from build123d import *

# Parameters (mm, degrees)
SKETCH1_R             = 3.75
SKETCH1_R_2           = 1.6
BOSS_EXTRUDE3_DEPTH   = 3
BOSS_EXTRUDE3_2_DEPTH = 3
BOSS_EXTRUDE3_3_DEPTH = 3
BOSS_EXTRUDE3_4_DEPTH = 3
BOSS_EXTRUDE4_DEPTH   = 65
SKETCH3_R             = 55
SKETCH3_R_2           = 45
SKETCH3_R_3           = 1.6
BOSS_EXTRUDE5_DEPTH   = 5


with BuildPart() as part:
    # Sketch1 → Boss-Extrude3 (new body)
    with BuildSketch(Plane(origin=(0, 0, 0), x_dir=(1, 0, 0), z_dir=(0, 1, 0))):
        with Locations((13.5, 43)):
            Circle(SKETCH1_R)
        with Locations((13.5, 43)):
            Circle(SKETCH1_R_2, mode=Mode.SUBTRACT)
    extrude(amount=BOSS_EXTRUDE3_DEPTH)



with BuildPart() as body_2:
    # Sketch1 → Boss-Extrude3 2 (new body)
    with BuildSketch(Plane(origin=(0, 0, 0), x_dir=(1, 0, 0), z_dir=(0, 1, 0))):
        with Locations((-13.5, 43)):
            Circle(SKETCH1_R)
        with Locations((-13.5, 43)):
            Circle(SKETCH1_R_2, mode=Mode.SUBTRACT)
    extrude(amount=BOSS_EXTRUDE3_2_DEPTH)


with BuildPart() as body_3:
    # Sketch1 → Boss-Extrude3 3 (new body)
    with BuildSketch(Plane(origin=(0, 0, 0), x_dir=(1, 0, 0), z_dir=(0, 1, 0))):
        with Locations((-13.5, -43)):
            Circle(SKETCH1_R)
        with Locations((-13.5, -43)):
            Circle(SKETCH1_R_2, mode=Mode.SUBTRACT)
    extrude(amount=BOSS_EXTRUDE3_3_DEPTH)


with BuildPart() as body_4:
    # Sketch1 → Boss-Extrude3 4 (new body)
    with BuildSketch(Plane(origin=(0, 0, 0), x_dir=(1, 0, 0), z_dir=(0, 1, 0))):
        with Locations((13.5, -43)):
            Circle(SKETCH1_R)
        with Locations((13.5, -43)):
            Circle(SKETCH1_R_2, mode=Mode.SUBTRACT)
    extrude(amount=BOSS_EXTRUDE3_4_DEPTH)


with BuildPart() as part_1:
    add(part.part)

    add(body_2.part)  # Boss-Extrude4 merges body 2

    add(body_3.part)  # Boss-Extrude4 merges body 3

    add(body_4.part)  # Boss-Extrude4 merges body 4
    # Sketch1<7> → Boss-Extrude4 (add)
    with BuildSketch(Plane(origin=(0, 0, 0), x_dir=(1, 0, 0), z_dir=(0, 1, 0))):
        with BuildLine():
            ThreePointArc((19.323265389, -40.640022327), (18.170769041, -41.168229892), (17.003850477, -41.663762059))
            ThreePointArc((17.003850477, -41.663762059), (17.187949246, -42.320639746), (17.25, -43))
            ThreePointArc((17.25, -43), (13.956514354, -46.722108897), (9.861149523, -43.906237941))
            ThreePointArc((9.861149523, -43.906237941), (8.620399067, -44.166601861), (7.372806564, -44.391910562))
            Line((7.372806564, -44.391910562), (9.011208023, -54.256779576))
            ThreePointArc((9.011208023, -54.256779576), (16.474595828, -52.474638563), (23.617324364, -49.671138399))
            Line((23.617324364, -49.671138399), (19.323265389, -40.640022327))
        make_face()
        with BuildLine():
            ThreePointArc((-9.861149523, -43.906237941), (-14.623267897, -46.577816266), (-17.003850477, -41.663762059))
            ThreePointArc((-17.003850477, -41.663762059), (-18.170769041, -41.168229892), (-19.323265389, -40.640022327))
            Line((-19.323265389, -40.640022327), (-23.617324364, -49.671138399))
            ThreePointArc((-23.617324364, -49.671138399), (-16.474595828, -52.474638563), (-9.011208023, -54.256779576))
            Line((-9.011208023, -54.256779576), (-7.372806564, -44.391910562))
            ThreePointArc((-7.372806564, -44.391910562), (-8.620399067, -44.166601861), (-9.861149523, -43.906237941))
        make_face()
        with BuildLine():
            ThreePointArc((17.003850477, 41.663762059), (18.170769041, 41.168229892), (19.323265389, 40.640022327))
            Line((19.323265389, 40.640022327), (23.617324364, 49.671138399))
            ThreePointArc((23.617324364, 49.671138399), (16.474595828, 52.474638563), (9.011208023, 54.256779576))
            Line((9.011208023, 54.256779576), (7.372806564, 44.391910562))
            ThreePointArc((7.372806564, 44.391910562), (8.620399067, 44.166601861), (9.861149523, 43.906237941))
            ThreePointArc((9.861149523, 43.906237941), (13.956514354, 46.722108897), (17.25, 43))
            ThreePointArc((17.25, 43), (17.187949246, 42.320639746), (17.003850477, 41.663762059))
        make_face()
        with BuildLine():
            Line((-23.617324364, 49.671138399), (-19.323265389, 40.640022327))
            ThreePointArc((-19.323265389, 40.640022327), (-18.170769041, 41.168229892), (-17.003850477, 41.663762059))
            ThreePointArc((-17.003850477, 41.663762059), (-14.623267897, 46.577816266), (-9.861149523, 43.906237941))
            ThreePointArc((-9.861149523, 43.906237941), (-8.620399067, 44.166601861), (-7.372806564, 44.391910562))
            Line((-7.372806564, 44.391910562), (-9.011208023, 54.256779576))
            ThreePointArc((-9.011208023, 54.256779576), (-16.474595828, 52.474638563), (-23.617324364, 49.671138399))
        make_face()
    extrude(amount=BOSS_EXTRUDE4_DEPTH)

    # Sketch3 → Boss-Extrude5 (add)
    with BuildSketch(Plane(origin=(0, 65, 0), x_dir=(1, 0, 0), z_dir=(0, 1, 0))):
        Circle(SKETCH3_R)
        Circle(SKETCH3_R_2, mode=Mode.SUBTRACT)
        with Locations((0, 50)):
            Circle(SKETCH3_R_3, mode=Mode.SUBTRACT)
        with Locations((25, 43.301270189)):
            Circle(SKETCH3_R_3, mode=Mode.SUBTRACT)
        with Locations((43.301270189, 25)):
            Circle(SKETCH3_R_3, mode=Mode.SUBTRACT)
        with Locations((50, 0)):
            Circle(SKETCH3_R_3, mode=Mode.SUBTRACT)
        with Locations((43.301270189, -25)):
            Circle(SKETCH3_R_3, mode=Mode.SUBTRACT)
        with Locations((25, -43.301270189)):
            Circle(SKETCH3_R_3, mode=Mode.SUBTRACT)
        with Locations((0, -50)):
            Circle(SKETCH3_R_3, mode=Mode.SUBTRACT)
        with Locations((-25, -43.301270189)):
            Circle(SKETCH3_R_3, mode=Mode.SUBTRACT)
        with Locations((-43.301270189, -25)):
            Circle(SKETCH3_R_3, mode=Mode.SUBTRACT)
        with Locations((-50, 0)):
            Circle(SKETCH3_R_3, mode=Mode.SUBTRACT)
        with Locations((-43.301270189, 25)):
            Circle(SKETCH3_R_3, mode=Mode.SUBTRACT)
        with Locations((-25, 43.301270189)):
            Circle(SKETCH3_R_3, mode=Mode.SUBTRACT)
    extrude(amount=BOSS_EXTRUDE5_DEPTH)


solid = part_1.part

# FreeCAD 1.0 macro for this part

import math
import FreeCAD as App
import Part
import Sketcher

V = App.Vector
Q = App.Units.Quantity

doc = App.newDocument("Part")
body = doc.addObject("PartDesign::Body", "Body")

# Sketch on XZ plane
sketch1 = body.newObject("Sketcher::SketchObject", "Sketch")
sketch1.AttachmentSupport = (doc.getObject("XZ_Plane"), [""])
sketch1.MapMode = "FlatFace"
sketch1.addGeometry([
    Part.Circle(V(13.5, -43, 0), V(0, 0, 1), 3.75),
    Part.Circle(V(13.5, -43, 0), V(0, 0, 1), 1.6),
], False)
sketch1.addConstraint([
    Sketcher.Constraint("Coincident", 1, 3, 0, 3),
    Sketcher.Constraint("Diameter", 0, Q("7.5 mm")),
    Sketcher.Constraint("Diameter", 1, Q("3.2 mm")),
    Sketcher.Constraint("DistanceY", 0, 3, -1, 1, Q("43 mm")),
    Sketcher.Constraint("DistanceX", -1, 1, 0, 3, Q("13.5 mm")),
])
pad1 = body.newObject("PartDesign::Pad", "Pad")
pad1.Profile = sketch1
pad1.Length = 3
pad1.Reversed = True
body2 = doc.addObject("PartDesign::Body", "Body001")

# Sketch on XZ plane
sketch2 = body2.newObject("Sketcher::SketchObject", "Sketch001")
sketch2.AttachmentSupport = (doc.getObject("XZ_Plane001"), [""])
sketch2.MapMode = "FlatFace"
sketch2.addGeometry([
    Part.Circle(V(-13.5, -43, 0), V(0, 0, 1), 3.75),
    Part.Circle(V(-13.5, -43, 0), V(0, 0, 1), 1.6),
], False)
sketch2.addConstraint([
    Sketcher.Constraint("Coincident", 1, 3, 0, 3),
    Sketcher.Constraint("Diameter", 0, Q("7.5 mm")),
    Sketcher.Constraint("Diameter", 1, Q("3.2 mm")),
    Sketcher.Constraint("DistanceY", 0, 3, -1, 1, Q("43 mm")),
    Sketcher.Constraint("DistanceX", 0, 3, -1, 1, Q("13.5 mm")),
])
pad2 = body2.newObject("PartDesign::Pad", "Pad001")
pad2.Profile = sketch2
pad2.Length = 3
pad2.Reversed = True
body3 = doc.addObject("PartDesign::Body", "Body002")

# Sketch on XZ plane
sketch3 = body3.newObject("Sketcher::SketchObject", "Sketch002")
sketch3.AttachmentSupport = (doc.getObject("XZ_Plane002"), [""])
sketch3.MapMode = "FlatFace"
sketch3.addGeometry([
    Part.Circle(V(-13.5, 43, 0), V(0, 0, 1), 3.75),
    Part.Circle(V(-13.5, 43, 0), V(0, 0, 1), 1.6),
], False)
sketch3.addConstraint([
    Sketcher.Constraint("Coincident", 1, 3, 0, 3),
    Sketcher.Constraint("Diameter", 0, Q("7.5 mm")),
    Sketcher.Constraint("Diameter", 1, Q("3.2 mm")),
    Sketcher.Constraint("DistanceY", -1, 1, 0, 3, Q("43 mm")),
    Sketcher.Constraint("DistanceX", 0, 3, -1, 1, Q("13.5 mm")),
])
pad3 = body3.newObject("PartDesign::Pad", "Pad002")
pad3.Profile = sketch3
pad3.Length = 3
pad3.Reversed = True
body4 = doc.addObject("PartDesign::Body", "Body003")

# Sketch on XZ plane
sketch4 = body4.newObject("Sketcher::SketchObject", "Sketch003")
sketch4.AttachmentSupport = (doc.getObject("XZ_Plane003"), [""])
sketch4.MapMode = "FlatFace"
sketch4.addGeometry([
    Part.Circle(V(13.5, 43, 0), V(0, 0, 1), 3.75),
    Part.Circle(V(13.5, 43, 0), V(0, 0, 1), 1.6),
], False)
sketch4.addConstraint([
    Sketcher.Constraint("Coincident", 1, 3, 0, 3),
    Sketcher.Constraint("Diameter", 0, Q("7.5 mm")),
    Sketcher.Constraint("Diameter", 1, Q("3.2 mm")),
    Sketcher.Constraint("DistanceY", -1, 1, 0, 3, Q("43 mm")),
    Sketcher.Constraint("DistanceX", -1, 1, 0, 3, Q("13.5 mm")),
])
pad4 = body4.newObject("PartDesign::Pad", "Pad003")
pad4.Profile = sketch4
pad4.Length = 3
pad4.Reversed = True
body.AllowCompound = True
doc.recompute()

boolean = body.newObject("PartDesign::Boolean", "Boolean")
boolean.Type = "Fuse"
boolean.addObjects([body2])
doc.recompute()

boolean2 = body.newObject("PartDesign::Boolean", "Boolean001")
boolean2.Type = "Fuse"
boolean2.addObjects([body3])
doc.recompute()

boolean3 = body.newObject("PartDesign::Boolean", "Boolean002")
boolean3.Type = "Fuse"
boolean3.addObjects([body4])

# Sketch on XZ plane
sketch5 = body.newObject("Sketcher::SketchObject", "Sketch004")
sketch5.AttachmentSupport = (doc.getObject("XZ_Plane"), [""])
sketch5.MapMode = "FlatFace"
sketch5.addGeometry([
    Part.ArcOfCircle(Part.Circle(V(0, 0, 0), V(0, 0, 1), 45), math.radians(64.570137), math.radians(67.798604)),  # 0
    Part.ArcOfCircle(Part.Circle(V(13.5, 43, 0), V(0, 0, 1), 3.75), math.radians(-20.874986), math.radians(0)),  # 1
    Part.ArcOfCircle(Part.Circle(V(13.5, 43, 0), V(0, 0, 1), 3.75), math.radians(0), math.radians(166.015261)),  # 2
    Part.ArcOfCircle(Part.Circle(V(0, 0, 0), V(0, 0, 1), 45), math.radians(77.34167), math.radians(80.570137)),  # 3
    Part.LineSegment(V(7.372807, 44.391911, 0), V(9.011208, 54.25678, 0)),  # 4
    Part.ArcOfCircle(Part.Circle(V(0, 0, 0), V(0, 0, 1), 55), math.radians(64.570137), math.radians(80.570137)),  # 5
    Part.LineSegment(V(23.617324, 49.671138, 0), V(19.323265, 40.640022, 0)),  # 6
    Part.ArcOfCircle(Part.Circle(V(-13.5, 43, 0), V(0, 0, 1), 3.75), math.radians(13.984739), math.radians(200.874986)),  # 7
    Part.ArcOfCircle(Part.Circle(V(0, 0, 0), V(0, 0, 1), 45), math.radians(112.201396), math.radians(115.429863)),  # 8
    Part.LineSegment(V(-19.323265, 40.640022, 0), V(-23.617324, 49.671138, 0)),  # 9
    Part.ArcOfCircle(Part.Circle(V(0, 0, 0), V(0, 0, 1), 55), math.radians(99.429863), math.radians(115.429863)),  # 10
    Part.LineSegment(V(-9.011208, 54.25678, 0), V(-7.372807, 44.391911, 0)),  # 11
    Part.ArcOfCircle(Part.Circle(V(0, 0, 0), V(0, 0, 1), 45), math.radians(99.429863), math.radians(102.65833)),  # 12
    Part.ArcOfCircle(Part.Circle(V(0, 0, 0), V(0, 0, 1), 45), math.radians(-67.798604), math.radians(-64.570137)),  # 13
    Part.LineSegment(V(19.323265, -40.640022, 0), V(23.617324, -49.671138, 0)),  # 14
    Part.ArcOfCircle(Part.Circle(V(0, 0, 0), V(0, 0, 1), 55), math.radians(-80.570137), math.radians(-64.570137)),  # 15
    Part.LineSegment(V(9.011208, -54.25678, 0), V(7.372807, -44.391911, 0)),  # 16
    Part.ArcOfCircle(Part.Circle(V(0, 0, 0), V(0, 0, 1), 45), math.radians(-80.570137), math.radians(-77.34167)),  # 17
    Part.ArcOfCircle(Part.Circle(V(13.5, -43, 0), V(0, 0, 1), 3.75), math.radians(-166.015261), math.radians(0)),  # 18
    Part.ArcOfCircle(Part.Circle(V(13.5, -43, 0), V(0, 0, 1), 3.75), math.radians(0), math.radians(20.874986)),  # 19
    Part.LineSegment(V(-23.617324, -49.671138, 0), V(-19.323265, -40.640022, 0)),  # 20
    Part.ArcOfCircle(Part.Circle(V(0, 0, 0), V(0, 0, 1), 45), math.radians(-115.429863), math.radians(-112.201396)),  # 21
    Part.ArcOfCircle(Part.Circle(V(-13.5, -43, 0), V(0, 0, 1), 3.75), math.radians(159.125014), math.radians(346.015261)),  # 22
    Part.ArcOfCircle(Part.Circle(V(0, 0, 0), V(0, 0, 1), 45), math.radians(-102.65833), math.radians(-99.429863)),  # 23
    Part.LineSegment(V(-7.372807, -44.391911, 0), V(-9.011208, -54.25678, 0)),  # 24
    Part.ArcOfCircle(Part.Circle(V(0, 0, 0), V(0, 0, 1), 55), math.radians(-115.429863), math.radians(-99.429863)),  # 25
], False)
sketch5.addConstraint([
    Sketcher.Constraint("Coincident", 0, 2, 1, 1),
    Sketcher.Constraint("Tangent", 1, 2, 2, 1),
    Sketcher.Constraint("Coincident", 2, 2, 3, 1),
    Sketcher.Constraint("Coincident", 3, 2, 4, 1),
    Sketcher.Constraint("Coincident", 4, 2, 5, 2),
    Sketcher.Constraint("Coincident", 5, 1, 6, 1),
    Sketcher.Constraint("Coincident", 6, 2, 0, 1),
    Sketcher.Constraint("Coincident", 7, 2, 8, 1),
    Sketcher.Constraint("Coincident", 8, 2, 9, 1),
    Sketcher.Constraint("Coincident", 9, 2, 10, 2),
    Sketcher.Constraint("Coincident", 10, 1, 11, 1),
    Sketcher.Constraint("Coincident", 11, 2, 12, 1),
    Sketcher.Constraint("Coincident", 12, 2, 7, 1),
    Sketcher.Constraint("Coincident", 13, 2, 14, 1),
    Sketcher.Constraint("Coincident", 14, 2, 15, 2),
    Sketcher.Constraint("Coincident", 15, 1, 16, 1),
    Sketcher.Constraint("Coincident", 16, 2, 17, 1),
    Sketcher.Constraint("Coincident", 17, 2, 18, 1),
    Sketcher.Constraint("Tangent", 18, 2, 19, 1),
    Sketcher.Constraint("Coincident", 19, 2, 13, 1),
    Sketcher.Constraint("Coincident", 20, 2, 21, 1),
    Sketcher.Constraint("Coincident", 21, 2, 22, 1),
    Sketcher.Constraint("Coincident", 22, 2, 23, 1),
    Sketcher.Constraint("Coincident", 23, 2, 24, 1),
    Sketcher.Constraint("Coincident", 24, 2, 25, 2),
    Sketcher.Constraint("Coincident", 25, 1, 20, 1),
    Sketcher.Constraint("Coincident", 0, 3, -1, 1),
    Sketcher.Constraint("Coincident", 3, 3, -1, 1),
    Sketcher.Constraint("Coincident", 5, 3, -1, 1),
    Sketcher.Constraint("Coincident", 8, 3, -1, 1),
    Sketcher.Constraint("Coincident", 10, 3, -1, 1),
    Sketcher.Constraint("Coincident", 12, 3, -1, 1),
    Sketcher.Constraint("Coincident", 13, 3, -1, 1),
    Sketcher.Constraint("Coincident", 15, 3, -1, 1),
    Sketcher.Constraint("Coincident", 17, 3, -1, 1),
    Sketcher.Constraint("Coincident", 21, 3, -1, 1),
    Sketcher.Constraint("Coincident", 23, 3, -1, 1),
    Sketcher.Constraint("Coincident", 25, 3, -1, 1),
    Sketcher.Constraint("Equal", 1, 2),
    Sketcher.Constraint("Equal", 0, 3),
    Sketcher.Constraint("Equal", 2, 7),
    Sketcher.Constraint("Equal", 3, 8),
    Sketcher.Constraint("Equal", 5, 10),
    Sketcher.Constraint("Equal", 8, 12),
    Sketcher.Constraint("Equal", 12, 13),
    Sketcher.Constraint("Equal", 10, 15),
    Sketcher.Constraint("Equal", 13, 17),
    Sketcher.Constraint("Equal", 7, 18),
    Sketcher.Constraint("Equal", 18, 19),
    Sketcher.Constraint("Equal", 17, 21),
    Sketcher.Constraint("Equal", 19, 22),
    Sketcher.Constraint("Equal", 21, 23),
    Sketcher.Constraint("Equal", 15, 25),
    Sketcher.Constraint("Symmetric", 7, 3, 18, 3, -1, 1),
    Sketcher.Constraint("Symmetric", 1, 3, 22, 3, -1, 1),
    Sketcher.Constraint("Symmetric", 1, 3, 7, 3, -2),
    Sketcher.Constraint("Parallel", 9, 14),
    Sketcher.Constraint("Parallel", 11, 16),
    Sketcher.Constraint("Parallel", 6, 20),
    Sketcher.Constraint("Parallel", 4, 24),
    Sketcher.Constraint("Horizontal", 7, 3, 1, 2),
    Sketcher.Constraint("Horizontal", 6, 2, 8, 2),
    Sketcher.Constraint("Horizontal", 5, 1, 9, 2),
    Sketcher.Constraint("Horizontal", 4, 2, 10, 1),
    Sketcher.Constraint("Horizontal", 3, 2, 11, 2),
    Sketcher.Constraint("Horizontal", 22, 3, 18, 2),
    Sketcher.Constraint("Horizontal", 13, 2, 20, 2),
    Sketcher.Constraint("Horizontal", 16, 2, 23, 2),
    Sketcher.Constraint("Vertical", 6, 2, 13, 2),
    Sketcher.Constraint("Vertical", 4, 2, 15, 1),
    Sketcher.Constraint("Radius", 0, Q("45 mm")),
    Sketcher.Constraint("Radius", 5, Q("55 mm")),
    Sketcher.Constraint("Radius", 1, Q("3.75 mm")),
    Sketcher.Constraint("DistanceY", -1, 1, 1, 3, Q("43 mm")),
    Sketcher.Constraint("DistanceX", 7, 3, 1, 3, Q("27 mm")),
    Sketcher.Constraint("DistanceX", 3, 2, 4, 2, Q("1.638401 mm")),
    Sketcher.Constraint("DistanceY", 2, 2, 5, 1, Q("5.7649 mm")),
    Sketcher.Constraint("DistanceY", -1, 1, 3, 2, Q("44.391911 mm")),
    Sketcher.Constraint("DistanceY", 6, 2, 0, 2, Q("1.02374 mm")),
])
pad5 = body.newObject("PartDesign::Pad", "Pad004")
pad5.Profile = sketch5
pad5.Length = 65
pad5.Reversed = True

# Sketch on XZ plane
sketch6 = body.newObject("Sketcher::SketchObject", "Sketch005")
sketch6.AttachmentSupport = (doc.getObject("XZ_Plane"), [""])
sketch6.MapMode = "FlatFace"
sketch6.AttachmentOffset = App.Placement(V(0, 0, -65), App.Rotation())
sketch6.addGeometry([
    Part.Circle(V(0, 0, 0), V(0, 0, 1), 55),  # 0
    Part.Circle(V(-25, 43.30127, 0), V(0, 0, 1), 1.6),  # 1
    Part.Circle(V(-43.30127, 25, 0), V(0, 0, 1), 1.6),  # 2
    Part.Circle(V(0, 50, 0), V(0, 0, 1), 1.6),  # 3
    Part.Circle(V(25, 43.30127, 0), V(0, 0, 1), 1.6),  # 4
    Part.Circle(V(43.30127, 25, 0), V(0, 0, 1), 1.6),  # 5
    Part.Circle(V(-50, 0, 0), V(0, 0, 1), 1.6),  # 6
    Part.Circle(V(-43.30127, -25, 0), V(0, 0, 1), 1.6),  # 7
    Part.Circle(V(-25, -43.30127, 0), V(0, 0, 1), 1.6),  # 8
    Part.Circle(V(0, 0, 0), V(0, 0, 1), 45),  # 9
    Part.Circle(V(50, 0, 0), V(0, 0, 1), 1.6),  # 10
    Part.Circle(V(43.30127, -25, 0), V(0, 0, 1), 1.6),  # 11
    Part.Circle(V(0, -50, 0), V(0, 0, 1), 1.6),  # 12
    Part.Circle(V(25, -43.30127, 0), V(0, 0, 1), 1.6),  # 13
], False)
sketch6.addConstraint([
    Sketcher.Constraint("Coincident", 0, 3, -1, 1),
    Sketcher.Constraint("Coincident", 9, 3, -1, 1),
    Sketcher.Constraint("Equal", 1, 2),
    Sketcher.Constraint("Equal", 2, 3),
    Sketcher.Constraint("Equal", 3, 4),
    Sketcher.Constraint("Equal", 4, 5),
    Sketcher.Constraint("Equal", 5, 6),
    Sketcher.Constraint("Equal", 6, 7),
    Sketcher.Constraint("Equal", 7, 8),
    Sketcher.Constraint("Equal", 8, 10),
    Sketcher.Constraint("Equal", 10, 11),
    Sketcher.Constraint("Equal", 11, 12),
    Sketcher.Constraint("Equal", 12, 13),
    Sketcher.Constraint("Symmetric", 5, 3, 7, 3, -1, 1),
    Sketcher.Constraint("Symmetric", 4, 3, 8, 3, -1, 1),
    Sketcher.Constraint("Symmetric", 6, 3, 10, 3, -1, 1),
    Sketcher.Constraint("Symmetric", 2, 3, 11, 3, -1, 1),
    Sketcher.Constraint("Symmetric", 3, 3, 12, 3, -1, 1),
    Sketcher.Constraint("Symmetric", 1, 3, 13, 3, -1, 1),
    Sketcher.Constraint("Symmetric", 1, 3, 4, 3, -2),
    Sketcher.Constraint("Symmetric", 2, 3, 5, 3, -2),
    Sketcher.Constraint("PointOnObject", 3, 3, -2),
    Sketcher.Constraint("PointOnObject", 6, 3, -1),
    Sketcher.Constraint("Diameter", 0, Q("110 mm")),
    Sketcher.Constraint("Diameter", 9, Q("90 mm")),
    Sketcher.Constraint("Diameter", 1, Q("3.2 mm")),
    Sketcher.Constraint("DistanceX", 1, 3, -1, 1, Q("25 mm")),
    Sketcher.Constraint("DistanceY", -1, 1, 2, 3, Q("25 mm")),
    Sketcher.Constraint("DistanceY", -1, 1, 3, 3, Q("50 mm")),
    Sketcher.Constraint("DistanceX", 6, 3, -1, 1, Q("50 mm")),
    Sketcher.Constraint("DistanceY", -1, 1, 1, 3, Q("43.30127 mm")),
    Sketcher.Constraint("DistanceX", 2, 3, -1, 1, Q("43.30127 mm")),
])
pad6 = body.newObject("PartDesign::Pad", "Pad005")
pad6.Profile = sketch6
pad6.Length = 5
pad6.Reversed = True

doc.recompute()
